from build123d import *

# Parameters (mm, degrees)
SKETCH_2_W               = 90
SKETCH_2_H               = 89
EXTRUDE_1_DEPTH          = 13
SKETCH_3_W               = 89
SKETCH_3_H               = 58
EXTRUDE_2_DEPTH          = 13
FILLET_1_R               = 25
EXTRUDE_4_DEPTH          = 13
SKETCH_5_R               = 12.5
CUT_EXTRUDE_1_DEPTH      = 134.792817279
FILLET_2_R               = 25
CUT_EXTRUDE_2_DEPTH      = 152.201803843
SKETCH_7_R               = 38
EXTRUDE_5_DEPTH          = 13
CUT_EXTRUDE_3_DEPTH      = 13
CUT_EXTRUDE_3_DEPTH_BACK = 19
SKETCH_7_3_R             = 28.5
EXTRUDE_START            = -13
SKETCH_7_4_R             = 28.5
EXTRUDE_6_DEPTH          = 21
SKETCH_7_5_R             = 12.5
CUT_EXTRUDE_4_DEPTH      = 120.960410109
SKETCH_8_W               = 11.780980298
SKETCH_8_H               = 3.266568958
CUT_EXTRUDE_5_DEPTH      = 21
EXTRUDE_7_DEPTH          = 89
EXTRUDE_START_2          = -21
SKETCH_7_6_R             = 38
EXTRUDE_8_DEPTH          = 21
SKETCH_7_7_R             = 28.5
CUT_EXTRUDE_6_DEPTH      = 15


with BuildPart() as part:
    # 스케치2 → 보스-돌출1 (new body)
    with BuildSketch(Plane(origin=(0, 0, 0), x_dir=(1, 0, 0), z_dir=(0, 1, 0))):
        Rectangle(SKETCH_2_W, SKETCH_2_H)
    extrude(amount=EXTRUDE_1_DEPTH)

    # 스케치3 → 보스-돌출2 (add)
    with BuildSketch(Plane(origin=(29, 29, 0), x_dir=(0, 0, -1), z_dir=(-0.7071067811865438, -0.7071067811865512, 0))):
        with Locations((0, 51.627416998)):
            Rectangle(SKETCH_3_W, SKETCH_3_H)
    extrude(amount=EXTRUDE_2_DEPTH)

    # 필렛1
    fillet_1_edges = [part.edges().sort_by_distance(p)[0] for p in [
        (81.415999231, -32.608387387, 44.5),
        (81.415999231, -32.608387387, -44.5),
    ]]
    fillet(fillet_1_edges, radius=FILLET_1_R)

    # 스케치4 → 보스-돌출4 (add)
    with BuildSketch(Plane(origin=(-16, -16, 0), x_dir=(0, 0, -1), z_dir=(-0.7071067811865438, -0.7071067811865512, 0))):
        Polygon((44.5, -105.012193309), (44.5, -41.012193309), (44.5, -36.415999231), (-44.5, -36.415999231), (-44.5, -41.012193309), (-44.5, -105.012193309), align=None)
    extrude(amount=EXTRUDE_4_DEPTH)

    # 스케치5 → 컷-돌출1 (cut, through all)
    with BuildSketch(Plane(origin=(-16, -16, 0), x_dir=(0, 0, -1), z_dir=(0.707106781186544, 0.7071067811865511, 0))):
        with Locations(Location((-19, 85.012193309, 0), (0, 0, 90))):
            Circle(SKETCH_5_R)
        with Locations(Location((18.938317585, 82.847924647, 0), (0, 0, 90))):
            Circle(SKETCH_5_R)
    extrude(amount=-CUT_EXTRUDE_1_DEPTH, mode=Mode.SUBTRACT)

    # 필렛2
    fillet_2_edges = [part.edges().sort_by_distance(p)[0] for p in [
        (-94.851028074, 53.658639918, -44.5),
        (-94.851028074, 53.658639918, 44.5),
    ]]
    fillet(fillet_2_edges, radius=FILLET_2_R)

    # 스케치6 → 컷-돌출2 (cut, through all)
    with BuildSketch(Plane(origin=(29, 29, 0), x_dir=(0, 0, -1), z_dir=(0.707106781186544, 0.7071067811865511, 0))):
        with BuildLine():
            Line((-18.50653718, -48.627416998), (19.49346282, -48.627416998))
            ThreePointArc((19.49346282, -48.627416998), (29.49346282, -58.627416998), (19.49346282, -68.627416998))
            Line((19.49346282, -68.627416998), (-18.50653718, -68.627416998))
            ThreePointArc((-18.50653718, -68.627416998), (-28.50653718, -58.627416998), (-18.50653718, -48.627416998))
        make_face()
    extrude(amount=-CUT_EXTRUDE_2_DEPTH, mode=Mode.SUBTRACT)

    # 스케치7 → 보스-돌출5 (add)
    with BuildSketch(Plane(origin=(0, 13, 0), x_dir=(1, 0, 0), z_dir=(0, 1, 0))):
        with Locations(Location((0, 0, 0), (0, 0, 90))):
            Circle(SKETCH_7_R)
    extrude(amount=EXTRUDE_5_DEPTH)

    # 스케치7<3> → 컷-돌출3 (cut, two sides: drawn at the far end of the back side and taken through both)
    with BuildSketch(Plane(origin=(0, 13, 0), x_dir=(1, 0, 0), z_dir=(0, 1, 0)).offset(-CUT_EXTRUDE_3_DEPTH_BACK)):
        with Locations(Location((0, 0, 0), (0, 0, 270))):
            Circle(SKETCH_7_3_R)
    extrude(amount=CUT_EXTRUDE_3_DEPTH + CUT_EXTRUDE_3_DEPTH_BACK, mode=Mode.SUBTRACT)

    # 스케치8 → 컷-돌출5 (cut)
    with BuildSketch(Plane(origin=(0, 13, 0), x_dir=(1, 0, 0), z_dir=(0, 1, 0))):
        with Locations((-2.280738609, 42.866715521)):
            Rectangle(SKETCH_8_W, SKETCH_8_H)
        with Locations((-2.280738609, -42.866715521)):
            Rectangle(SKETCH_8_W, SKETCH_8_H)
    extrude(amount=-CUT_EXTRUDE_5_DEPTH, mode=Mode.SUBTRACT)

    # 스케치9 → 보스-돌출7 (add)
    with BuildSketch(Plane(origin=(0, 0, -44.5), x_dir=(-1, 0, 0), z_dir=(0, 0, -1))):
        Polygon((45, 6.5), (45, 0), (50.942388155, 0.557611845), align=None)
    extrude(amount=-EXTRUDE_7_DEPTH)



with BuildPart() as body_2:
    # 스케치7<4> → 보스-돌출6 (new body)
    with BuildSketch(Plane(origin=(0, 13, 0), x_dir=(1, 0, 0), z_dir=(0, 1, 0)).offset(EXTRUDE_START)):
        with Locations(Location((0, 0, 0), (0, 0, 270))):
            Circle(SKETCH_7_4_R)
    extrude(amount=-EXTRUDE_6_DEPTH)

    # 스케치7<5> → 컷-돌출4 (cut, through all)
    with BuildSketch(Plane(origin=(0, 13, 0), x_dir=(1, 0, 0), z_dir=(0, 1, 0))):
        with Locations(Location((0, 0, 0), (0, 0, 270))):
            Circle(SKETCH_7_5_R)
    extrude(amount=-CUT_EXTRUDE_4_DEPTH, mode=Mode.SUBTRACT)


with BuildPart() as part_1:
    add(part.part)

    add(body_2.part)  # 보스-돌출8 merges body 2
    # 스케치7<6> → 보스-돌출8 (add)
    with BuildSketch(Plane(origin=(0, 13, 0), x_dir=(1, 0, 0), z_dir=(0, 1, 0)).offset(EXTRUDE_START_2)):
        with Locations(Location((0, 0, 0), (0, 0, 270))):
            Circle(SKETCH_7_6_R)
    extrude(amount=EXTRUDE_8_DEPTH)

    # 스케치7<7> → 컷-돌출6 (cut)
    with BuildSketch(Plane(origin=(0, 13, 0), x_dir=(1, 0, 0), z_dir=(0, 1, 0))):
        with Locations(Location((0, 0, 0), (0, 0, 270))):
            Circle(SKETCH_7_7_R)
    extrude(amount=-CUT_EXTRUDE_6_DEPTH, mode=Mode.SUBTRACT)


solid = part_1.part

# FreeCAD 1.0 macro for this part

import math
import FreeCAD as App
import Part
import Sketcher

V = App.Vector
Q = App.Units.Quantity


def edges_at(feature, points):
    """Names of the edges that pass closest to the given points."""
    edges = feature.Shape.Edges
    near = lambda p: min(range(len(edges)), key=lambda i: edges[i].distToShape(Part.Vertex(*p))[0])
    return sorted({f"Edge{near(p) + 1}" for p in points})


def add_polygon(sketch, points):
    """Adds a closed chain of lines whose ends are joined by coincident constraints."""
    first, n = sketch.GeometryCount, len(points)
    for a, b in zip(points, points[1:] + points[:1]):
        sketch.addGeometry(Part.LineSegment(App.Vector(*a, 0), App.Vector(*b, 0)), False)
    for i in range(n):
        sketch.addConstraint(Sketcher.Constraint("Coincident", first + i, 2, first + (i + 1) % n, 1))

doc = App.newDocument("Part")
params = doc.addObject("Spreadsheet::Sheet", "Params")
for row, (alias, value) in enumerate([
    ("sketch1_width", "90 mm"),
    ("sketch1_height", "89 mm"),
    ("pad1_length", "13 mm"),
    ("sketch2_width", "89 mm"),
    ("sketch2_height", "58 mm"),
    ("pad2_length", "13 mm"),
    ("fillet_radius", "25 mm"),
    ("sketch3_width", "89 mm"),
    ("pad3_length", "13 mm"),
    ("sketch4_diameter", "25 mm"),
    ("fillet2_radius", "25 mm"),
    ("sketch5_radius", "10 mm"),
    ("sketch5_width", "38 mm"),
    ("sketch6_diameter", "76 mm"),
    ("pad4_length", "13 mm"),
    ("sketch7_diameter", "57 mm"),
    ("pocket4_length", "21 mm"),
    ("sketch9_height", "6.5 mm"),
    ("pad5_length", "89 mm"),
    ("sketch10_diameter", "57 mm"),
    ("pad6_length", "21 mm"),
    ("sketch11_diameter", "25 mm"),
    ("sketch12_diameter", "76 mm"),
    ("pad7_length", "21 mm"),
    ("sketch13_diameter", "57 mm"),
    ("pocket6_length", "15 mm"),
], start=1):
    params.set(f"A{row}", alias)
    params.set(f"B{row}", "=" + value)
    params.setAlias(f"B{row}", alias)

body = doc.addObject("PartDesign::Body", "Body")

# Sketch on XZ plane
sketch1 = body.newObject("Sketcher::SketchObject", "Sketch")
sketch1.AttachmentSupport = (doc.getObject("XZ_Plane"), [""])
sketch1.MapMode = "FlatFace"
add_polygon(sketch1, [(-45, -44), (-45, 44), (45, 44), (45, -44)])  # lines 0-3
sketch1.addConstraint(Sketcher.Constraint("Vertical", 0))
sketch1.addConstraint(Sketcher.Constraint("Horizontal", 1))
sketch1.addConstraint(Sketcher.Constraint("Vertical", 2))
sketch1.addConstraint(Sketcher.Constraint("Horizontal", 3))
sketch1.addConstraint(Sketcher.Constraint("Symmetric", 0, 2, 2, 2, -1, 1))
sketch1.addConstraint(Sketcher.Constraint("DistanceX", 1, 1, 1, 2, 90.0))
sketch1.addConstraint(Sketcher.Constraint("DistanceY", 0, 1, 0, 2, 89.0))
sketch1.setExpression("Constraints[9]", "Params.sketch1_width")
sketch1.setExpression("Constraints[10]", "Params.sketch1_height")
pad1 = body.newObject("PartDesign::Pad", "Pad")
pad1.Profile = sketch1
pad1.setExpression("Length", "Params.pad1_length")
pad1.Reversed = True

# Sketch on an angled plane
sketch2 = body.newObject("Sketcher::SketchObject", "Sketch001")
sketch2.Placement = App.Placement(V(29, 29, 0), App.Rotation(V(0, 0, -1), V(0.707106781, -0.707106781, 0), V(-0.707106781, -0.707106781, 0), "ZXY"))
add_polygon(sketch2, [(-44, 81), (-44, 23), (44, 23), (44, 81)])  # lines 0-3
sketch2.addConstraint(Sketcher.Constraint("Vertical", 0))
sketch2.addConstraint(Sketcher.Constraint("Horizontal", 1))
sketch2.addConstraint(Sketcher.Constraint("Vertical", 2))
sketch2.addConstraint(Sketcher.Constraint("Horizontal", 3))
sketch2.addConstraint(Sketcher.Constraint("DistanceX", 1, 1, 1, 2, 89.0))
sketch2.addConstraint(Sketcher.Constraint("DistanceY", 0, 2, 0, 1, 58.0))
sketch2.addConstraint(Sketcher.Constraint("DistanceX", 0, 2, -1, 1, 44.5))
sketch2.addConstraint(Sketcher.Constraint("DistanceY", -1, 1, 0, 2, 22.627417))
sketch2.setExpression("Constraints[8]", "Params.sketch2_width")
sketch2.setExpression("Constraints[9]", "Params.sketch2_height")
pad2 = body.newObject("PartDesign::Pad", "Pad001")
pad2.Profile = sketch2
pad2.setExpression("Length", "Params.pad2_length")
doc.recompute()

fillet = body.newObject("PartDesign::Fillet", "Fillet")
fillet.Base = (pad2, edges_at(pad2, [(81.416, -32.608, 44.5), (81.416, -32.608, -44.5)]))
fillet.setExpression("Radius", "Params.fillet_radius")

# Sketch on an angled plane
sketch3 = body.newObject("Sketcher::SketchObject", "Sketch002")
sketch3.Placement = App.Placement(V(-16, -16, 0), App.Rotation(V(0, 0, -1), V(0.707106781, -0.707106781, 0), V(-0.707106781, -0.707106781, 0), "ZXY"))
add_polygon(sketch3, [(44, -105), (44, -36), (-44, -36), (-44, -105)])  # lines 0-3
sketch3.addConstraint(Sketcher.Constraint("Vertical", 0))
sketch3.addConstraint(Sketcher.Constraint("Horizontal", 1))
sketch3.addConstraint(Sketcher.Constraint("Vertical", 2))
sketch3.addConstraint(Sketcher.Constraint("Horizontal", 3))
sketch3.addConstraint(Sketcher.Constraint("DistanceX", 1, 2, 1, 1, 89.0))
sketch3.addConstraint(Sketcher.Constraint("DistanceX", -1, 1, 0, 2, 44.5))
sketch3.addConstraint(Sketcher.Constraint("DistanceY", 0, 2, -1, 1, 36.415999))
sketch3.addConstraint(Sketcher.Constraint("DistanceY", 0, 1, 0, 2, 68.596194))
sketch3.setExpression("Constraints[8]", "Params.sketch3_width")
pad3 = body.newObject("PartDesign::Pad", "Pad002")
pad3.Profile = sketch3
pad3.setExpression("Length", "Params.pad3_length")

# Sketch on an angled plane
sketch4 = body.newObject("Sketcher::SketchObject", "Sketch003")
sketch4.Placement = App.Placement(V(-16, -16, 0), App.Rotation(V(0, 0, -1), V(-0.707106781, 0.707106781, 0), V(0.707106781, 0.707106781, 0), "ZXY"))
sketch4.addGeometry(Part.Circle(V(-19, 85, 0), V(0, 0, 1), 12), False)
sketch4.addGeometry(Part.Circle(V(19, 83, 0), V(0, 0, 1), 12), False)
sketch4.addConstraint(Sketcher.Constraint("Equal", 0, 1))
sketch4.addConstraint(Sketcher.Constraint("Diameter", 0, 25.0))
sketch4.addConstraint(Sketcher.Constraint("DistanceX", 0, 3, -1, 1, 19.0))
sketch4.addConstraint(Sketcher.Constraint("DistanceY", 1, 3, 0, 3, 2.164269))
sketch4.addConstraint(Sketcher.Constraint("DistanceY", -1, 1, 0, 3, 85.012193))
sketch4.addConstraint(Sketcher.Constraint("DistanceX", -1, 1, 1, 3, 18.938318))
sketch4.setExpression("Constraints[1]", "Params.sketch4_diameter")
pocket1 = body.newObject("PartDesign::Pocket", "Pocket")
pocket1.Profile = sketch4
pocket1.Type = "ThroughAll"
doc.recompute()

fillet2 = body.newObject("PartDesign::Fillet", "Fillet001")
fillet2.Base = (pocket1, edges_at(pocket1, [(-94.851, 53.659, -44.5), (-94.851, 53.659, 44.5)]))
fillet2.setExpression("Radius", "Params.fillet2_radius")

# Sketch on an angled plane
sketch5 = body.newObject("Sketcher::SketchObject", "Sketch004")
sketch5.Placement = App.Placement(V(29, 29, 0), App.Rotation(V(0, 0, -1), V(-0.707106781, 0.707106781, 0), V(0.707106781, 0.707106781, 0), "ZXY"))
sketch5.addGeometry(Part.LineSegment(V(19, -49, 0), V(-19, -49, 0)), False)
sketch5.addGeometry(Part.ArcOfCircle(Part.Circle(V(-19, -59, 0), V(0, 0, 1), 10), math.radians(90), math.radians(270)), False)
sketch5.addGeometry(Part.LineSegment(V(-19, -69, 0), V(19, -69, 0)), False)
sketch5.addGeometry(Part.ArcOfCircle(Part.Circle(V(19, -59, 0), V(0, 0, 1), 10), math.radians(-90), math.radians(90)), False)
sketch5.addConstraint(Sketcher.Constraint("Tangent", 0, 2, 1, 1))
sketch5.addConstraint(Sketcher.Constraint("Tangent", 1, 2, 2, 1))
sketch5.addConstraint(Sketcher.Constraint("Tangent", 2, 2, 3, 1))
sketch5.addConstraint(Sketcher.Constraint("Tangent", 3, 2, 0, 1))
sketch5.addConstraint(Sketcher.Constraint("Horizontal", 0))
sketch5.addConstraint(Sketcher.Constraint("Horizontal", 2))
sketch5.addConstraint(Sketcher.Constraint("Radius", 1, 10.0))
sketch5.addConstraint(Sketcher.Constraint("DistanceX", 0, 2, 0, 1, 38.0))
sketch5.addConstraint(Sketcher.Constraint("DistanceX", 1, 3, -1, 1, 18.506537))
sketch5.addConstraint(Sketcher.Constraint("DistanceY", 1, 3, -1, 1, 58.627417))
sketch5.setExpression("Constraints[6]", "Params.sketch5_radius")
sketch5.setExpression("Constraints[7]", "Params.sketch5_width")
pocket2 = body.newObject("PartDesign::Pocket", "Pocket001")
pocket2.Profile = sketch5
pocket2.Type = "ThroughAll"

# Sketch on XZ plane
sketch6 = body.newObject("Sketcher::SketchObject", "Sketch005")
sketch6.AttachmentSupport = (doc.getObject("XZ_Plane"), [""])
sketch6.MapMode = "FlatFace"
sketch6.AttachmentOffset = App.Placement(V(0, 0, -13), App.Rotation())
sketch6.addGeometry(Part.Circle(V(0, 0, 0), V(0, 0, 1), 38), False)
sketch6.addConstraint(Sketcher.Constraint("Coincident", 0, 3, -1, 1))
sketch6.addConstraint(Sketcher.Constraint("Diameter", 0, 76.0))
sketch6.setExpression("Constraints[1]", "Params.sketch6_diameter")
pad4 = body.newObject("PartDesign::Pad", "Pad003")
pad4.Profile = sketch6
pad4.setExpression("Length", "Params.pad4_length")
pad4.Reversed = True

# Sketch on XZ plane
sketch7 = body.newObject("Sketcher::SketchObject", "Sketch006")
sketch7.AttachmentSupport = (doc.getObject("XZ_Plane"), [""])
sketch7.MapMode = "FlatFace"
sketch7.AttachmentOffset = App.Placement(V(0, 0, -13), App.Rotation())
sketch7.addGeometry(Part.Circle(V(0, 0, 0), V(0, 0, 1), 28), False)
sketch7.addConstraint(Sketcher.Constraint("Coincident", 0, 3, -1, 1))
sketch7.addConstraint(Sketcher.Constraint("Diameter", 0, 57.0))
sketch7.setExpression("Constraints[1]", "Params.sketch7_diameter")
pocket3 = body.newObject("PartDesign::Pocket", "Pocket002")
pocket3.Profile = sketch7
pocket3.Type = "ThroughAll"
pocket3.Midplane = True

# Sketch on XZ plane
sketch8 = body.newObject("Sketcher::SketchObject", "Sketch007")
sketch8.AttachmentSupport = (doc.getObject("XZ_Plane"), [""])
sketch8.MapMode = "FlatFace"
sketch8.AttachmentOffset = App.Placement(V(0, 0, -13), App.Rotation())
add_polygon(sketch8, [(-8.2, -44.5), (-8.2, -41.2), (3.6, -41.2), (3.6, -44.5)])  # lines 0-3
add_polygon(sketch8, [(-8.2, 41.2), (-8.2, 44.5), (3.6, 44.5), (3.6, 41.2)])  # lines 4-7
sketch8.addConstraint(Sketcher.Constraint("Vertical", 0))
sketch8.addConstraint(Sketcher.Constraint("Horizontal", 1))
sketch8.addConstraint(Sketcher.Constraint("Vertical", 2))
sketch8.addConstraint(Sketcher.Constraint("Horizontal", 3))
sketch8.addConstraint(Sketcher.Constraint("Vertical", 4))
sketch8.addConstraint(Sketcher.Constraint("Horizontal", 5))
sketch8.addConstraint(Sketcher.Constraint("Vertical", 6))
sketch8.addConstraint(Sketcher.Constraint("Horizontal", 7))
sketch8.addConstraint(Sketcher.Constraint("Symmetric", 3, 2, 4, 2, -1))
sketch8.addConstraint(Sketcher.Constraint("Symmetric", 1, 2, 6, 2, -1))
sketch8.addConstraint(Sketcher.Constraint("DistanceY", 3, 2, 4, 2, 89.0))
sketch8.addConstraint(Sketcher.Constraint("DistanceX", 1, 1, 1, 2, 11.78098))
sketch8.addConstraint(Sketcher.Constraint("DistanceY", 0, 1, 0, 2, 3.266569))
sketch8.addConstraint(Sketcher.Constraint("DistanceX", 0, 2, -1, 1, 8.171229))
pocket4 = body.newObject("PartDesign::Pocket", "Pocket003")
pocket4.Profile = sketch8
pocket4.setExpression("Length", "Params.pocket4_length")
pocket4.Reversed = True

# Sketch on XY plane
sketch9 = body.newObject("Sketcher::SketchObject", "Sketch008")
sketch9.AttachmentSupport = (doc.getObject("XY_Plane"), [""])
sketch9.MapMode = "FlatFace"
sketch9.AttachmentOffset = App.Placement(V(0, 0, -44.5), App.Rotation())
add_polygon(sketch9, [(-45, 6), (-45, 0), (-51, 1)])  # lines 0-2
sketch9.addConstraint(Sketcher.Constraint("Vertical", 0))
sketch9.addConstraint(Sketcher.Constraint("PointOnObject", 0, 2, -1))
sketch9.addConstraint(Sketcher.Constraint("Angle", 2, Q("45 deg")))
sketch9.addConstraint(Sketcher.Constraint("DistanceY", 0, 2, 0, 1, 6.5))
sketch9.addConstraint(Sketcher.Constraint("DistanceX", 0, 2, -1, 1, 45.0))
sketch9.addConstraint(Sketcher.Constraint("DistanceX", 1, 2, -1, 1, 50.942388))
sketch9.setExpression("Constraints[6]", "Params.sketch9_height")
pad5 = body.newObject("PartDesign::Pad", "Pad004")
pad5.Profile = sketch9
pad5.setExpression("Length", "Params.pad5_length")
body2 = doc.addObject("PartDesign::Body", "Body001")

# Sketch on XZ plane
sketch10 = body2.newObject("Sketcher::SketchObject", "Sketch009")
sketch10.AttachmentSupport = (doc.getObject("XZ_Plane001"), [""])
sketch10.MapMode = "FlatFace"
sketch10.addGeometry(Part.Circle(V(0, 0, 0), V(0, 0, 1), 28), False)
sketch10.addConstraint(Sketcher.Constraint("Coincident", 0, 3, -1, 1))
sketch10.addConstraint(Sketcher.Constraint("Diameter", 0, 57.0))
sketch10.setExpression("Constraints[1]", "Params.sketch10_diameter")
pad6 = body2.newObject("PartDesign::Pad", "Pad005")
pad6.Profile = sketch10
pad6.setExpression("Length", "Params.pad6_length")

# Sketch on XZ plane
sketch11 = body2.newObject("Sketcher::SketchObject", "Sketch010")
sketch11.AttachmentSupport = (doc.getObject("XZ_Plane001"), [""])
sketch11.MapMode = "FlatFace"
sketch11.AttachmentOffset = App.Placement(V(0, 0, -13), App.Rotation())
sketch11.addGeometry(Part.Circle(V(0, 0, 0), V(0, 0, 1), 12), False)
sketch11.addConstraint(Sketcher.Constraint("Coincident", 0, 3, -1, 1))
sketch11.addConstraint(Sketcher.Constraint("Diameter", 0, 25.0))
sketch11.setExpression("Constraints[1]", "Params.sketch11_diameter")
pocket5 = body2.newObject("PartDesign::Pocket", "Pocket004")
pocket5.Profile = sketch11
pocket5.Type = "ThroughAll"
pocket5.Reversed = True
body.AllowCompound = True
doc.recompute()

boolean = body.newObject("PartDesign::Boolean", "Boolean")
boolean.Type = "Fuse"
boolean.addObjects([body2])

# Sketch on XZ plane
sketch12 = body.newObject("Sketcher::SketchObject", "Sketch011")
sketch12.AttachmentSupport = (doc.getObject("XZ_Plane"), [""])
sketch12.MapMode = "FlatFace"
sketch12.AttachmentOffset = App.Placement(V(0, 0, 8), App.Rotation())
sketch12.addGeometry(Part.Circle(V(0, 0, 0), V(0, 0, 1), 38), False)
sketch12.addConstraint(Sketcher.Constraint("Coincident", 0, 3, -1, 1))
sketch12.addConstraint(Sketcher.Constraint("Diameter", 0, 76.0))
sketch12.setExpression("Constraints[1]", "Params.sketch12_diameter")
pad7 = body.newObject("PartDesign::Pad", "Pad006")
pad7.Profile = sketch12
pad7.setExpression("Length", "Params.pad7_length")
pad7.Reversed = True

# Sketch on XZ plane
sketch13 = body.newObject("Sketcher::SketchObject", "Sketch012")
sketch13.AttachmentSupport = (doc.getObject("XZ_Plane"), [""])
sketch13.MapMode = "FlatFace"
sketch13.AttachmentOffset = App.Placement(V(0, 0, -13), App.Rotation())
sketch13.addGeometry(Part.Circle(V(0, 0, 0), V(0, 0, 1), 28), False)
sketch13.addConstraint(Sketcher.Constraint("Coincident", 0, 3, -1, 1))
sketch13.addConstraint(Sketcher.Constraint("Diameter", 0, 57.0))
sketch13.setExpression("Constraints[1]", "Params.sketch13_diameter")
pocket6 = body.newObject("PartDesign::Pocket", "Pocket005")
pocket6.Profile = sketch13
pocket6.setExpression("Length", "Params.pocket6_length")
pocket6.Reversed = True

doc.recompute()
